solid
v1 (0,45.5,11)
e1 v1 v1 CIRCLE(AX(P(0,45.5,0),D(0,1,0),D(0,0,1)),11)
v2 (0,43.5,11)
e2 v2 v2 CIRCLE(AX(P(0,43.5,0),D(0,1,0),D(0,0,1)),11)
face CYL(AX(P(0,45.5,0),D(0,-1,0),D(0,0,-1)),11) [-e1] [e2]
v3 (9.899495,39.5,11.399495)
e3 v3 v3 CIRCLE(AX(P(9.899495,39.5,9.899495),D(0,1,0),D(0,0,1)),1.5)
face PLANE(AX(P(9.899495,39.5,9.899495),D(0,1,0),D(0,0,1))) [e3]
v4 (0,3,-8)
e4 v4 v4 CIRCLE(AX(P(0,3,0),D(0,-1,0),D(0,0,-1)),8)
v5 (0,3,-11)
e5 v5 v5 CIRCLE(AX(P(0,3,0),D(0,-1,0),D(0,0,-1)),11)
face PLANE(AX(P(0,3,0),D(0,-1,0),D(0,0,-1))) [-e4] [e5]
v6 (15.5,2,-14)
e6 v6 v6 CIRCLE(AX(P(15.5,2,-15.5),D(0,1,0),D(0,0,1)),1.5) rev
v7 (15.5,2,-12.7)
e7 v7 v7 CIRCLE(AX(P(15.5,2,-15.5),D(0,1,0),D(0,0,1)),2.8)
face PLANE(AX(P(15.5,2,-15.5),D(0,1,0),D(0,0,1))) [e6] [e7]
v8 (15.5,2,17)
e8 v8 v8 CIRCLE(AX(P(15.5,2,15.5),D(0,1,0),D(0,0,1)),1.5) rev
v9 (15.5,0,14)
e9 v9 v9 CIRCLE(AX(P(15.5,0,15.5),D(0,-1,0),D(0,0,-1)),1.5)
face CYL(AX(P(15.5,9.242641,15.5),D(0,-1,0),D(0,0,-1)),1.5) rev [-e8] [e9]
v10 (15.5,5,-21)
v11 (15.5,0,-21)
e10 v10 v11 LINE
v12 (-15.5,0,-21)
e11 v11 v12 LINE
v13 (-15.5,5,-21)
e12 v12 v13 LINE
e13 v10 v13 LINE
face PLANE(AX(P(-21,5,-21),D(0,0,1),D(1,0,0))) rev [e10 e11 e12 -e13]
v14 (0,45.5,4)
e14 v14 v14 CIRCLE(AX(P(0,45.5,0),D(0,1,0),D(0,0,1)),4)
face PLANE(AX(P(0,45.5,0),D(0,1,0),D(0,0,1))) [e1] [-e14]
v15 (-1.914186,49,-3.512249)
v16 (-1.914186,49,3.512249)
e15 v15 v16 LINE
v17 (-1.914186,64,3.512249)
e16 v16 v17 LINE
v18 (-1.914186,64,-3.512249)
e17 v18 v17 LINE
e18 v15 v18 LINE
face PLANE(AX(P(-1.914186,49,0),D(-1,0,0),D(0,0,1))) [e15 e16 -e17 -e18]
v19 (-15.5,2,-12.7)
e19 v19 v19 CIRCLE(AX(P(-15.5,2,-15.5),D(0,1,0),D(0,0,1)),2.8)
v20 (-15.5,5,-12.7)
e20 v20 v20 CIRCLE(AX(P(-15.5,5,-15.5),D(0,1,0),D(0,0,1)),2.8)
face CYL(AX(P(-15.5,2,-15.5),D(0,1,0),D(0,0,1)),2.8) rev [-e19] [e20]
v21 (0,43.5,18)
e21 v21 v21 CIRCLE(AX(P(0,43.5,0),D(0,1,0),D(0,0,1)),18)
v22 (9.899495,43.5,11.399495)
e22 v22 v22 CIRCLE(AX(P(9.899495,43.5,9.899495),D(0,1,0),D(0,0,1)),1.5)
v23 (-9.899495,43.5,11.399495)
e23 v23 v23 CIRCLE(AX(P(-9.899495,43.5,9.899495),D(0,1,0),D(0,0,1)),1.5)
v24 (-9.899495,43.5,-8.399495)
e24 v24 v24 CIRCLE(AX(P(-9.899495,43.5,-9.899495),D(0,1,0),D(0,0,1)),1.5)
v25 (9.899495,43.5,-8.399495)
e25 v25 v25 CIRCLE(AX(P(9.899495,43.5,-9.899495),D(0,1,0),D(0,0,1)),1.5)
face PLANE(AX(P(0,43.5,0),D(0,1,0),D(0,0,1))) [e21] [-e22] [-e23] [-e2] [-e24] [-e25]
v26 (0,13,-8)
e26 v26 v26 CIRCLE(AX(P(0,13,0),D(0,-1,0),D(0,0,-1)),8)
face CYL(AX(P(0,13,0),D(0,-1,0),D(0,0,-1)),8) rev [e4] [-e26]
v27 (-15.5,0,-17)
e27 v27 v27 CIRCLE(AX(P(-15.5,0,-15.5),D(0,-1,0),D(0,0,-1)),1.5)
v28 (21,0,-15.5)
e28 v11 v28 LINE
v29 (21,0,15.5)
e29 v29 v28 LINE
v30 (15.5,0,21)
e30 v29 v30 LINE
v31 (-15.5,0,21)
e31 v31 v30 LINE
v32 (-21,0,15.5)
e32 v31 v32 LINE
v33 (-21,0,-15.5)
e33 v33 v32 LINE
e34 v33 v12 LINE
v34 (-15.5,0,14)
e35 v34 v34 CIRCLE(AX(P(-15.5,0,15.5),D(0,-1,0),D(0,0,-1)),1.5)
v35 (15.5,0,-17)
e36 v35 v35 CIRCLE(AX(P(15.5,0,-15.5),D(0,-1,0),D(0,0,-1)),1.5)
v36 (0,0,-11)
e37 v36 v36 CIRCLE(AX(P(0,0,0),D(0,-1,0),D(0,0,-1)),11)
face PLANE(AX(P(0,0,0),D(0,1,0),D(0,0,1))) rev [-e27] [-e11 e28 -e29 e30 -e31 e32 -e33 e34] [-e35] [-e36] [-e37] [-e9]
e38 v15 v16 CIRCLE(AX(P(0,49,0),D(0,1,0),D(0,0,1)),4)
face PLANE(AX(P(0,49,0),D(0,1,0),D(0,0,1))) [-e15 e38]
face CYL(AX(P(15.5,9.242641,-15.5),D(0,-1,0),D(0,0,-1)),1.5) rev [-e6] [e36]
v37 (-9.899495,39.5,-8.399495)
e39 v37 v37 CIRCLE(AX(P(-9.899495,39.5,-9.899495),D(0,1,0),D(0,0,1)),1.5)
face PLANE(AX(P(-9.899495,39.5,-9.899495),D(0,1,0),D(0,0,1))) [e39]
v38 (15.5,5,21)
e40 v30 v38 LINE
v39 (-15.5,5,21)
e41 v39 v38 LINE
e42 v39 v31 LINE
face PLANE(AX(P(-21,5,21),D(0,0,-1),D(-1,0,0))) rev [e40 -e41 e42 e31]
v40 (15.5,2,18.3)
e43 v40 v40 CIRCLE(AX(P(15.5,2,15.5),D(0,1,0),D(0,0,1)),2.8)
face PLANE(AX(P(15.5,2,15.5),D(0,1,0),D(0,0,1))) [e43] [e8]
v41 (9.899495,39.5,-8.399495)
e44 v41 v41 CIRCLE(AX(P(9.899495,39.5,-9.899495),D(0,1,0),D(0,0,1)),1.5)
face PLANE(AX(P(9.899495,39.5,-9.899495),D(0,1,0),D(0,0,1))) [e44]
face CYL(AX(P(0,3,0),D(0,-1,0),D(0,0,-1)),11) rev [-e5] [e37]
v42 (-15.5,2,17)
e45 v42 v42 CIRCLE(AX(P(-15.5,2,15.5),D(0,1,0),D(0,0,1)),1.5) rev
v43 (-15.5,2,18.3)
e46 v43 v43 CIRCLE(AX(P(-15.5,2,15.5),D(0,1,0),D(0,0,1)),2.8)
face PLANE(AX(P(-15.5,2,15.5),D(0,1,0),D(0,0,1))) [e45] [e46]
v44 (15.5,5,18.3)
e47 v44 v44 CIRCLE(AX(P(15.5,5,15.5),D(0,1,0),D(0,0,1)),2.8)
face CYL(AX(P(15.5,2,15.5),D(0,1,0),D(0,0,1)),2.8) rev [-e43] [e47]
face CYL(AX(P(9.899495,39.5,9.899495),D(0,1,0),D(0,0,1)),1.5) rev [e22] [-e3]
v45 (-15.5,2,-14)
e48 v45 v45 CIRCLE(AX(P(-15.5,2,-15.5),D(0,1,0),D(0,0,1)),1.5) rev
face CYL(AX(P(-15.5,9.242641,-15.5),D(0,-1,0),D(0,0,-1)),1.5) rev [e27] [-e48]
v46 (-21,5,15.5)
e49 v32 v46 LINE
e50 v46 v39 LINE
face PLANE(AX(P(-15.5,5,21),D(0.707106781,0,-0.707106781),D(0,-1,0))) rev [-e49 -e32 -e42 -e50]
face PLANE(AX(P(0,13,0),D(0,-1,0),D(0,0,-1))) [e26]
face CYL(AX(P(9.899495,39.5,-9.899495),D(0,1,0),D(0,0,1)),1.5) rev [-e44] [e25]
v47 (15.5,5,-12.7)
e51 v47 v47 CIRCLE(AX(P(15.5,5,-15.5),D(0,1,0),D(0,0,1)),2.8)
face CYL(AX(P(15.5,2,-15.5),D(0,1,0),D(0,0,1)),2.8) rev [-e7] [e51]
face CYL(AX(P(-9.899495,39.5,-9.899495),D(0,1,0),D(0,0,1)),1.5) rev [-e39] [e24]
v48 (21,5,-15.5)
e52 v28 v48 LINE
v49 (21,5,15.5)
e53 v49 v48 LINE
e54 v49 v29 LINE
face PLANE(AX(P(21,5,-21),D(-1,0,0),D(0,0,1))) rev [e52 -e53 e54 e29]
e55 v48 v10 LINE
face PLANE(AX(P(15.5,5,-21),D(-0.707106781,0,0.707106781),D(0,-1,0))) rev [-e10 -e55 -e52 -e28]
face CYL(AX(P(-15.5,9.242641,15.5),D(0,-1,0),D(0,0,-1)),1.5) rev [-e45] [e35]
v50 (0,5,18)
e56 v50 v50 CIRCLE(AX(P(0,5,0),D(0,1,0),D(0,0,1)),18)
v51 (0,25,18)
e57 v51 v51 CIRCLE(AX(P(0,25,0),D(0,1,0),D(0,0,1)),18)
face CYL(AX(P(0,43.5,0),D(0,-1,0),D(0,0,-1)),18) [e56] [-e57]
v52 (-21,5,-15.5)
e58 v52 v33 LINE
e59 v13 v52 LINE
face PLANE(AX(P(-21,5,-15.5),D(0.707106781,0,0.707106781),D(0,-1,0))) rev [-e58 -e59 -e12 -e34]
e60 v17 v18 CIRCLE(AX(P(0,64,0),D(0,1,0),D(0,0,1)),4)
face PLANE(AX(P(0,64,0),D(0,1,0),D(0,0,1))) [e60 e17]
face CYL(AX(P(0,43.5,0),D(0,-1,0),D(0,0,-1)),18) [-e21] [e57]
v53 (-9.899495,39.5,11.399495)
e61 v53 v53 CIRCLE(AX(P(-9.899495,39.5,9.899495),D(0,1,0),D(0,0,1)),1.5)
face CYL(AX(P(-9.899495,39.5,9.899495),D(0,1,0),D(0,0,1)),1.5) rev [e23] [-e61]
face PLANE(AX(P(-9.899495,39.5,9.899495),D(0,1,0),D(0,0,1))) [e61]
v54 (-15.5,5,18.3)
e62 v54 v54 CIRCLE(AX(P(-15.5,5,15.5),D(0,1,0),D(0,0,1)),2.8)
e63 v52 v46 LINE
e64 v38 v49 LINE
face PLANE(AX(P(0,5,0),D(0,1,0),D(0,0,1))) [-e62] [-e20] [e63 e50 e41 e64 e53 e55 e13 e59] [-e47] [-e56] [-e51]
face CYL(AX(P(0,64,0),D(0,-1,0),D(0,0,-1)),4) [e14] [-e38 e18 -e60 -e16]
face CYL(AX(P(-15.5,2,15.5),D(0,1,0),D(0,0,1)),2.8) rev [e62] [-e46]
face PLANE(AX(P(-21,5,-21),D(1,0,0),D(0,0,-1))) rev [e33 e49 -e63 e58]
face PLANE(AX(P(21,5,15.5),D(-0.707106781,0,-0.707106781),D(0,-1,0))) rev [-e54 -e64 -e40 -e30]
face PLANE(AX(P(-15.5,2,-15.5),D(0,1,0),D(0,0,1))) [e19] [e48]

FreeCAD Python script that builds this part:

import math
import FreeCAD as App
import Part
import Sketcher

V = App.Vector
Q = App.Units.Quantity


def edges_at(feature, points):
    """Names of the edges that pass closest to the given points."""
    edges = feature.Shape.Edges
    near = lambda p: min(range(len(edges)), key=lambda i: edges[i].distToShape(Part.Vertex(*p))[0])
    return sorted({f"Edge{near(p) + 1}" for p in points})


def add_polygon(sketch, points):
    """Adds a closed chain of lines whose ends are joined by coincident constraints."""
    first, n = sketch.GeometryCount, len(points)
    for a, b in zip(points, points[1:] + points[:1]):
        sketch.addGeometry(Part.LineSegment(App.Vector(*a, 0), App.Vector(*b, 0)), False)
    for i in range(n):
        sketch.addConstraint(Sketcher.Constraint("Coincident", first + i, 2, first + (i + 1) % n, 1))

doc = App.newDocument("Part")
body = doc.addObject("PartDesign::Body", "Body")

sketch1 = body.newObject("Sketcher::SketchObject", "Sketch")
sketch1.AttachmentSupport = (doc.getObject("XZ_Plane"), [""])
sketch1.MapMode = "FlatFace"
add_polygon(sketch1, [(-21, -21), (-21, 21), (21, 21), (21, -21)])
sketch1.addConstraint([
    Sketcher.Constraint("Vertical", 0),
    Sketcher.Constraint("Horizontal", 1),
    Sketcher.Constraint("Vertical", 2),
    Sketcher.Constraint("Horizontal", 3),
    Sketcher.Constraint("Symmetric", 0, 2, 2, 2, -1, 1),
    Sketcher.Constraint("Equal", 3, 0),
    Sketcher.Constraint("DistanceX", 1, 1, 1, 2, Q("42 mm")),
])
pad1 = body.newObject("PartDesign::Pad", "Pad")
pad1.Profile = sketch1
pad1.Length = 5
pad1.Reversed = True
doc.recompute()

chamfer = body.newObject("PartDesign::Chamfer", "Chamfer")
chamfer.Base = (pad1, edges_at(pad1, [
    (21, 2.5, 21),
    (-21, 2.5, 21),
    (-21, 2.5, -21),
    (21, 2.5, -21),
]))
chamfer.Size = 5.5

sketch2 = body.newObject("Sketcher::SketchObject", "Sketch001")
sketch2.AttachmentSupport = (doc.getObject("XZ_Plane"), [""])
sketch2.MapMode = "FlatFace"
sketch2.addGeometry([
    Part.Circle(V(-15.5, 15.5, 0), V(0, 0, 1), 1.5),
    Part.Circle(V(15.5, 15.5, 0), V(0, 0, 1), 1.5),
    Part.Circle(V(15.5, -15.5, 0), V(0, 0, 1), 1.5),
    Part.Circle(V(-15.5, -15.5, 0), V(0, 0, 1), 1.5),
], False)
sketch2.addConstraint([
    Sketcher.Constraint("Equal", 0, 1),
    Sketcher.Constraint("Equal", 1, 2),
    Sketcher.Constraint("Equal", 2, 3),
    Sketcher.Constraint("Symmetric", 0, 3, 2, 3, -1, 1),
    Sketcher.Constraint("Symmetric", 1, 3, 3, 3, -1, 1),
    Sketcher.Constraint("Symmetric", 0, 3, 1, 3, -2),
    Sketcher.Constraint("Diameter", 0, Q("3 mm")),
    Sketcher.Constraint("DistanceX", 0, 3, 1, 3, Q("31 mm")),
    Sketcher.Constraint("DistanceY", 2, 3, 1, 3, Q("31 mm")),
])
pocket1 = body.newObject("PartDesign::Pocket", "Pocket")
pocket1.Profile = sketch2
pocket1.Length = 5

sketch3 = body.newObject("Sketcher::SketchObject", "Sketch002")
sketch3.AttachmentSupport = (doc.getObject("XZ_Plane"), [""])
sketch3.MapMode = "FlatFace"
sketch3.AttachmentOffset = App.Placement(V(0, 0, -5), App.Rotation())
sketch3.addGeometry(Part.Circle(V(0, 0, 0), V(0, 0, 1), 18), False)
sketch3.addConstraint([
    Sketcher.Constraint("Coincident", 0, 3, -1, 1),
    Sketcher.Constraint("Diameter", 0, Q("36 mm")),
])
pad2 = body.newObject("PartDesign::Pad", "Pad001")
pad2.Profile = sketch3
pad2.Length = 38.5
pad2.Reversed = True

sketch4 = body.newObject("Sketcher::SketchObject", "Sketch003")
sketch4.AttachmentSupport = (doc.getObject("XZ_Plane"), [""])
sketch4.MapMode = "FlatFace"
sketch4.AttachmentOffset = App.Placement(V(0, 0, -43.5), App.Rotation())
sketch4.addGeometry([
    Part.Circle(V(-9.9, -9.9, 0), V(0, 0, 1), 1.5),
    Part.Circle(V(9.9, -9.9, 0), V(0, 0, 1), 1.5),
    Part.Circle(V(9.9, 9.9, 0), V(0, 0, 1), 1.5),
    Part.Circle(V(-9.9, 9.9, 0), V(0, 0, 1), 1.5),
], False)
sketch4.addConstraint([
    Sketcher.Constraint("Equal", 0, 1),
    Sketcher.Constraint("Equal", 1, 2),
    Sketcher.Constraint("Equal", 2, 3),
    Sketcher.Constraint("Symmetric", 0, 3, 2, 3, -1, 1),
    Sketcher.Constraint("Symmetric", 1, 3, 3, 3, -1, 1),
    Sketcher.Constraint("Symmetric", 0, 3, 1, 3, -2),
    Sketcher.Constraint("Diameter", 0, Q("3 mm")),
    Sketcher.Constraint("DistanceX", 0, 3, 1, 3, Q("19.79899 mm")),
    Sketcher.Constraint("DistanceY", 1, 3, 2, 3, Q("19.79899 mm")),
])
pocket2 = body.newObject("PartDesign::Pocket", "Pocket001")
pocket2.Profile = sketch4
pocket2.Length = 4
pocket2.Reversed = True

sketch5 = body.newObject("Sketcher::SketchObject", "Sketch004")
sketch5.AttachmentSupport = (doc.getObject("XZ_Plane"), [""])
sketch5.MapMode = "FlatFace"
sketch5.AttachmentOffset = App.Placement(V(0, 0, -43.5), App.Rotation())
sketch5.addGeometry(Part.Circle(V(0, 0, 0), V(0, 0, 1), 11), False)
sketch5.addConstraint([
    Sketcher.Constraint("Coincident", 0, 3, -1, 1),
    Sketcher.Constraint("Diameter", 0, Q("22 mm")),
])
pad3 = body.newObject("PartDesign::Pad", "Pad002")
pad3.Profile = sketch5
pad3.Length = 2
pad3.Reversed = True

sketch6 = body.newObject("Sketcher::SketchObject", "Sketch005")
sketch6.AttachmentSupport = (doc.getObject("XZ_Plane"), [""])
sketch6.MapMode = "FlatFace"
sketch6.AttachmentOffset = App.Placement(V(0, 0, -45.5), App.Rotation())
sketch6.addGeometry(Part.Circle(V(0, 0, 0), V(0, 0, 1), 4), False)
sketch6.addConstraint([
    Sketcher.Constraint("Coincident", 0, 3, -1, 1),
    Sketcher.Constraint("Diameter", 0, Q("8 mm")),
])
pad4 = body.newObject("PartDesign::Pad", "Pad003")
pad4.Profile = sketch6
pad4.Length = 18.5
pad4.Reversed = True

sketch7 = body.newObject("Sketcher::SketchObject", "Sketch006")
sketch7.AttachmentSupport = (doc.getObject("XZ_Plane"), [""])
sketch7.MapMode = "FlatFace"
sketch7.addGeometry(Part.Circle(V(0, 0, 0), V(0, 0, 1), 11), False)
sketch7.addConstraint([
    Sketcher.Constraint("Coincident", 0, 3, -1, 1),
    Sketcher.Constraint("Diameter", 0, Q("22 mm")),
])
pocket3 = body.newObject("PartDesign::Pocket", "Pocket002")
pocket3.Profile = sketch7
pocket3.Length = 3

sketch8 = body.newObject("Sketcher::SketchObject", "Sketch007")
sketch8.AttachmentSupport = (doc.getObject("XZ_Plane"), [""])
sketch8.MapMode = "FlatFace"
sketch8.AttachmentOffset = App.Placement(V(0, 0, -3), App.Rotation())
sketch8.addGeometry(Part.Circle(V(0, 0, 0), V(0, 0, 1), 8), False)
sketch8.addConstraint([
    Sketcher.Constraint("Coincident", 0, 3, -1, 1),
    Sketcher.Constraint("Diameter", 0, Q("16 mm")),
])
pocket4 = body.newObject("PartDesign::Pocket", "Pocket003")
pocket4.Profile = sketch8
pocket4.Length = 10

sketch9 = body.newObject("Sketcher::SketchObject", "Sketch008")
sketch9.AttachmentSupport = (doc.getObject("XZ_Plane"), [""])
sketch9.MapMode = "FlatFace"
sketch9.AttachmentOffset = App.Placement(V(0, 0, -49), App.Rotation())
sketch9.addGeometry([
    Part.LineSegment(V(-1.9, 3.5, 0), V(-1.9, -3.5, 0)),
    Part.ArcOfCircle(Part.Circle(V(0, 0, 0), V(0, 0, 1), 4), math.radians(119), math.radians(241)),
], False)
sketch9.addConstraint([
    Sketcher.Constraint("Coincident", 0, 1, 1, 1),
    Sketcher.Constraint("Coincident", 1, 2, 0, 2),
    Sketcher.Constraint("Vertical", 0),
    Sketcher.Constraint("Coincident", 1, 3, -1, 1),
    Sketcher.Constraint("Radius", 1, Q("4 mm")),
    Sketcher.Constraint("DistanceY", 0, 2, 0, 1, Q("7.024498 mm")),
])
pocket5 = body.newObject("PartDesign::Pocket", "Pocket004")
pocket5.Profile = sketch9
pocket5.Length = 15

sketch10 = body.newObject("Sketcher::SketchObject", "Sketch009")
sketch10.AttachmentSupport = (doc.getObject("XZ_Plane"), [""])
sketch10.MapMode = "FlatFace"
sketch10.AttachmentOffset = App.Placement(V(0, 0, -5), App.Rotation())
sketch10.addGeometry([
    Part.Circle(V(-15.5, -15.5, 0), V(0, 0, 1), 2.8),
    Part.Circle(V(15.5, -15.5, 0), V(0, 0, 1), 2.8),
    Part.Circle(V(-15.5, 15.5, 0), V(0, 0, 1), 2.8),
    Part.Circle(V(15.5, 15.5, 0), V(0, 0, 1), 2.8),
], False)
sketch10.addConstraint([
    Sketcher.Constraint("Equal", 0, 1),
    Sketcher.Constraint("Equal", 1, 2),
    Sketcher.Constraint("Equal", 2, 3),
    Sketcher.Constraint("Symmetric", 1, 3, 2, 3, -1, 1),
    Sketcher.Constraint("Symmetric", 0, 3, 3, 3, -1, 1),
    Sketcher.Constraint("Symmetric", 0, 3, 1, 3, -2),
    Sketcher.Constraint("Diameter", 0, Q("5.6 mm")),
    Sketcher.Constraint("DistanceX", 0, 3, 1, 3, Q("31 mm")),
    Sketcher.Constraint("DistanceY", 0, 3, 2, 3, Q("31 mm")),
])
pocket6 = body.newObject("PartDesign::Pocket", "Pocket005")
pocket6.Profile = sketch10
pocket6.Length = 3
pocket6.Reversed = True

doc.recompute()
